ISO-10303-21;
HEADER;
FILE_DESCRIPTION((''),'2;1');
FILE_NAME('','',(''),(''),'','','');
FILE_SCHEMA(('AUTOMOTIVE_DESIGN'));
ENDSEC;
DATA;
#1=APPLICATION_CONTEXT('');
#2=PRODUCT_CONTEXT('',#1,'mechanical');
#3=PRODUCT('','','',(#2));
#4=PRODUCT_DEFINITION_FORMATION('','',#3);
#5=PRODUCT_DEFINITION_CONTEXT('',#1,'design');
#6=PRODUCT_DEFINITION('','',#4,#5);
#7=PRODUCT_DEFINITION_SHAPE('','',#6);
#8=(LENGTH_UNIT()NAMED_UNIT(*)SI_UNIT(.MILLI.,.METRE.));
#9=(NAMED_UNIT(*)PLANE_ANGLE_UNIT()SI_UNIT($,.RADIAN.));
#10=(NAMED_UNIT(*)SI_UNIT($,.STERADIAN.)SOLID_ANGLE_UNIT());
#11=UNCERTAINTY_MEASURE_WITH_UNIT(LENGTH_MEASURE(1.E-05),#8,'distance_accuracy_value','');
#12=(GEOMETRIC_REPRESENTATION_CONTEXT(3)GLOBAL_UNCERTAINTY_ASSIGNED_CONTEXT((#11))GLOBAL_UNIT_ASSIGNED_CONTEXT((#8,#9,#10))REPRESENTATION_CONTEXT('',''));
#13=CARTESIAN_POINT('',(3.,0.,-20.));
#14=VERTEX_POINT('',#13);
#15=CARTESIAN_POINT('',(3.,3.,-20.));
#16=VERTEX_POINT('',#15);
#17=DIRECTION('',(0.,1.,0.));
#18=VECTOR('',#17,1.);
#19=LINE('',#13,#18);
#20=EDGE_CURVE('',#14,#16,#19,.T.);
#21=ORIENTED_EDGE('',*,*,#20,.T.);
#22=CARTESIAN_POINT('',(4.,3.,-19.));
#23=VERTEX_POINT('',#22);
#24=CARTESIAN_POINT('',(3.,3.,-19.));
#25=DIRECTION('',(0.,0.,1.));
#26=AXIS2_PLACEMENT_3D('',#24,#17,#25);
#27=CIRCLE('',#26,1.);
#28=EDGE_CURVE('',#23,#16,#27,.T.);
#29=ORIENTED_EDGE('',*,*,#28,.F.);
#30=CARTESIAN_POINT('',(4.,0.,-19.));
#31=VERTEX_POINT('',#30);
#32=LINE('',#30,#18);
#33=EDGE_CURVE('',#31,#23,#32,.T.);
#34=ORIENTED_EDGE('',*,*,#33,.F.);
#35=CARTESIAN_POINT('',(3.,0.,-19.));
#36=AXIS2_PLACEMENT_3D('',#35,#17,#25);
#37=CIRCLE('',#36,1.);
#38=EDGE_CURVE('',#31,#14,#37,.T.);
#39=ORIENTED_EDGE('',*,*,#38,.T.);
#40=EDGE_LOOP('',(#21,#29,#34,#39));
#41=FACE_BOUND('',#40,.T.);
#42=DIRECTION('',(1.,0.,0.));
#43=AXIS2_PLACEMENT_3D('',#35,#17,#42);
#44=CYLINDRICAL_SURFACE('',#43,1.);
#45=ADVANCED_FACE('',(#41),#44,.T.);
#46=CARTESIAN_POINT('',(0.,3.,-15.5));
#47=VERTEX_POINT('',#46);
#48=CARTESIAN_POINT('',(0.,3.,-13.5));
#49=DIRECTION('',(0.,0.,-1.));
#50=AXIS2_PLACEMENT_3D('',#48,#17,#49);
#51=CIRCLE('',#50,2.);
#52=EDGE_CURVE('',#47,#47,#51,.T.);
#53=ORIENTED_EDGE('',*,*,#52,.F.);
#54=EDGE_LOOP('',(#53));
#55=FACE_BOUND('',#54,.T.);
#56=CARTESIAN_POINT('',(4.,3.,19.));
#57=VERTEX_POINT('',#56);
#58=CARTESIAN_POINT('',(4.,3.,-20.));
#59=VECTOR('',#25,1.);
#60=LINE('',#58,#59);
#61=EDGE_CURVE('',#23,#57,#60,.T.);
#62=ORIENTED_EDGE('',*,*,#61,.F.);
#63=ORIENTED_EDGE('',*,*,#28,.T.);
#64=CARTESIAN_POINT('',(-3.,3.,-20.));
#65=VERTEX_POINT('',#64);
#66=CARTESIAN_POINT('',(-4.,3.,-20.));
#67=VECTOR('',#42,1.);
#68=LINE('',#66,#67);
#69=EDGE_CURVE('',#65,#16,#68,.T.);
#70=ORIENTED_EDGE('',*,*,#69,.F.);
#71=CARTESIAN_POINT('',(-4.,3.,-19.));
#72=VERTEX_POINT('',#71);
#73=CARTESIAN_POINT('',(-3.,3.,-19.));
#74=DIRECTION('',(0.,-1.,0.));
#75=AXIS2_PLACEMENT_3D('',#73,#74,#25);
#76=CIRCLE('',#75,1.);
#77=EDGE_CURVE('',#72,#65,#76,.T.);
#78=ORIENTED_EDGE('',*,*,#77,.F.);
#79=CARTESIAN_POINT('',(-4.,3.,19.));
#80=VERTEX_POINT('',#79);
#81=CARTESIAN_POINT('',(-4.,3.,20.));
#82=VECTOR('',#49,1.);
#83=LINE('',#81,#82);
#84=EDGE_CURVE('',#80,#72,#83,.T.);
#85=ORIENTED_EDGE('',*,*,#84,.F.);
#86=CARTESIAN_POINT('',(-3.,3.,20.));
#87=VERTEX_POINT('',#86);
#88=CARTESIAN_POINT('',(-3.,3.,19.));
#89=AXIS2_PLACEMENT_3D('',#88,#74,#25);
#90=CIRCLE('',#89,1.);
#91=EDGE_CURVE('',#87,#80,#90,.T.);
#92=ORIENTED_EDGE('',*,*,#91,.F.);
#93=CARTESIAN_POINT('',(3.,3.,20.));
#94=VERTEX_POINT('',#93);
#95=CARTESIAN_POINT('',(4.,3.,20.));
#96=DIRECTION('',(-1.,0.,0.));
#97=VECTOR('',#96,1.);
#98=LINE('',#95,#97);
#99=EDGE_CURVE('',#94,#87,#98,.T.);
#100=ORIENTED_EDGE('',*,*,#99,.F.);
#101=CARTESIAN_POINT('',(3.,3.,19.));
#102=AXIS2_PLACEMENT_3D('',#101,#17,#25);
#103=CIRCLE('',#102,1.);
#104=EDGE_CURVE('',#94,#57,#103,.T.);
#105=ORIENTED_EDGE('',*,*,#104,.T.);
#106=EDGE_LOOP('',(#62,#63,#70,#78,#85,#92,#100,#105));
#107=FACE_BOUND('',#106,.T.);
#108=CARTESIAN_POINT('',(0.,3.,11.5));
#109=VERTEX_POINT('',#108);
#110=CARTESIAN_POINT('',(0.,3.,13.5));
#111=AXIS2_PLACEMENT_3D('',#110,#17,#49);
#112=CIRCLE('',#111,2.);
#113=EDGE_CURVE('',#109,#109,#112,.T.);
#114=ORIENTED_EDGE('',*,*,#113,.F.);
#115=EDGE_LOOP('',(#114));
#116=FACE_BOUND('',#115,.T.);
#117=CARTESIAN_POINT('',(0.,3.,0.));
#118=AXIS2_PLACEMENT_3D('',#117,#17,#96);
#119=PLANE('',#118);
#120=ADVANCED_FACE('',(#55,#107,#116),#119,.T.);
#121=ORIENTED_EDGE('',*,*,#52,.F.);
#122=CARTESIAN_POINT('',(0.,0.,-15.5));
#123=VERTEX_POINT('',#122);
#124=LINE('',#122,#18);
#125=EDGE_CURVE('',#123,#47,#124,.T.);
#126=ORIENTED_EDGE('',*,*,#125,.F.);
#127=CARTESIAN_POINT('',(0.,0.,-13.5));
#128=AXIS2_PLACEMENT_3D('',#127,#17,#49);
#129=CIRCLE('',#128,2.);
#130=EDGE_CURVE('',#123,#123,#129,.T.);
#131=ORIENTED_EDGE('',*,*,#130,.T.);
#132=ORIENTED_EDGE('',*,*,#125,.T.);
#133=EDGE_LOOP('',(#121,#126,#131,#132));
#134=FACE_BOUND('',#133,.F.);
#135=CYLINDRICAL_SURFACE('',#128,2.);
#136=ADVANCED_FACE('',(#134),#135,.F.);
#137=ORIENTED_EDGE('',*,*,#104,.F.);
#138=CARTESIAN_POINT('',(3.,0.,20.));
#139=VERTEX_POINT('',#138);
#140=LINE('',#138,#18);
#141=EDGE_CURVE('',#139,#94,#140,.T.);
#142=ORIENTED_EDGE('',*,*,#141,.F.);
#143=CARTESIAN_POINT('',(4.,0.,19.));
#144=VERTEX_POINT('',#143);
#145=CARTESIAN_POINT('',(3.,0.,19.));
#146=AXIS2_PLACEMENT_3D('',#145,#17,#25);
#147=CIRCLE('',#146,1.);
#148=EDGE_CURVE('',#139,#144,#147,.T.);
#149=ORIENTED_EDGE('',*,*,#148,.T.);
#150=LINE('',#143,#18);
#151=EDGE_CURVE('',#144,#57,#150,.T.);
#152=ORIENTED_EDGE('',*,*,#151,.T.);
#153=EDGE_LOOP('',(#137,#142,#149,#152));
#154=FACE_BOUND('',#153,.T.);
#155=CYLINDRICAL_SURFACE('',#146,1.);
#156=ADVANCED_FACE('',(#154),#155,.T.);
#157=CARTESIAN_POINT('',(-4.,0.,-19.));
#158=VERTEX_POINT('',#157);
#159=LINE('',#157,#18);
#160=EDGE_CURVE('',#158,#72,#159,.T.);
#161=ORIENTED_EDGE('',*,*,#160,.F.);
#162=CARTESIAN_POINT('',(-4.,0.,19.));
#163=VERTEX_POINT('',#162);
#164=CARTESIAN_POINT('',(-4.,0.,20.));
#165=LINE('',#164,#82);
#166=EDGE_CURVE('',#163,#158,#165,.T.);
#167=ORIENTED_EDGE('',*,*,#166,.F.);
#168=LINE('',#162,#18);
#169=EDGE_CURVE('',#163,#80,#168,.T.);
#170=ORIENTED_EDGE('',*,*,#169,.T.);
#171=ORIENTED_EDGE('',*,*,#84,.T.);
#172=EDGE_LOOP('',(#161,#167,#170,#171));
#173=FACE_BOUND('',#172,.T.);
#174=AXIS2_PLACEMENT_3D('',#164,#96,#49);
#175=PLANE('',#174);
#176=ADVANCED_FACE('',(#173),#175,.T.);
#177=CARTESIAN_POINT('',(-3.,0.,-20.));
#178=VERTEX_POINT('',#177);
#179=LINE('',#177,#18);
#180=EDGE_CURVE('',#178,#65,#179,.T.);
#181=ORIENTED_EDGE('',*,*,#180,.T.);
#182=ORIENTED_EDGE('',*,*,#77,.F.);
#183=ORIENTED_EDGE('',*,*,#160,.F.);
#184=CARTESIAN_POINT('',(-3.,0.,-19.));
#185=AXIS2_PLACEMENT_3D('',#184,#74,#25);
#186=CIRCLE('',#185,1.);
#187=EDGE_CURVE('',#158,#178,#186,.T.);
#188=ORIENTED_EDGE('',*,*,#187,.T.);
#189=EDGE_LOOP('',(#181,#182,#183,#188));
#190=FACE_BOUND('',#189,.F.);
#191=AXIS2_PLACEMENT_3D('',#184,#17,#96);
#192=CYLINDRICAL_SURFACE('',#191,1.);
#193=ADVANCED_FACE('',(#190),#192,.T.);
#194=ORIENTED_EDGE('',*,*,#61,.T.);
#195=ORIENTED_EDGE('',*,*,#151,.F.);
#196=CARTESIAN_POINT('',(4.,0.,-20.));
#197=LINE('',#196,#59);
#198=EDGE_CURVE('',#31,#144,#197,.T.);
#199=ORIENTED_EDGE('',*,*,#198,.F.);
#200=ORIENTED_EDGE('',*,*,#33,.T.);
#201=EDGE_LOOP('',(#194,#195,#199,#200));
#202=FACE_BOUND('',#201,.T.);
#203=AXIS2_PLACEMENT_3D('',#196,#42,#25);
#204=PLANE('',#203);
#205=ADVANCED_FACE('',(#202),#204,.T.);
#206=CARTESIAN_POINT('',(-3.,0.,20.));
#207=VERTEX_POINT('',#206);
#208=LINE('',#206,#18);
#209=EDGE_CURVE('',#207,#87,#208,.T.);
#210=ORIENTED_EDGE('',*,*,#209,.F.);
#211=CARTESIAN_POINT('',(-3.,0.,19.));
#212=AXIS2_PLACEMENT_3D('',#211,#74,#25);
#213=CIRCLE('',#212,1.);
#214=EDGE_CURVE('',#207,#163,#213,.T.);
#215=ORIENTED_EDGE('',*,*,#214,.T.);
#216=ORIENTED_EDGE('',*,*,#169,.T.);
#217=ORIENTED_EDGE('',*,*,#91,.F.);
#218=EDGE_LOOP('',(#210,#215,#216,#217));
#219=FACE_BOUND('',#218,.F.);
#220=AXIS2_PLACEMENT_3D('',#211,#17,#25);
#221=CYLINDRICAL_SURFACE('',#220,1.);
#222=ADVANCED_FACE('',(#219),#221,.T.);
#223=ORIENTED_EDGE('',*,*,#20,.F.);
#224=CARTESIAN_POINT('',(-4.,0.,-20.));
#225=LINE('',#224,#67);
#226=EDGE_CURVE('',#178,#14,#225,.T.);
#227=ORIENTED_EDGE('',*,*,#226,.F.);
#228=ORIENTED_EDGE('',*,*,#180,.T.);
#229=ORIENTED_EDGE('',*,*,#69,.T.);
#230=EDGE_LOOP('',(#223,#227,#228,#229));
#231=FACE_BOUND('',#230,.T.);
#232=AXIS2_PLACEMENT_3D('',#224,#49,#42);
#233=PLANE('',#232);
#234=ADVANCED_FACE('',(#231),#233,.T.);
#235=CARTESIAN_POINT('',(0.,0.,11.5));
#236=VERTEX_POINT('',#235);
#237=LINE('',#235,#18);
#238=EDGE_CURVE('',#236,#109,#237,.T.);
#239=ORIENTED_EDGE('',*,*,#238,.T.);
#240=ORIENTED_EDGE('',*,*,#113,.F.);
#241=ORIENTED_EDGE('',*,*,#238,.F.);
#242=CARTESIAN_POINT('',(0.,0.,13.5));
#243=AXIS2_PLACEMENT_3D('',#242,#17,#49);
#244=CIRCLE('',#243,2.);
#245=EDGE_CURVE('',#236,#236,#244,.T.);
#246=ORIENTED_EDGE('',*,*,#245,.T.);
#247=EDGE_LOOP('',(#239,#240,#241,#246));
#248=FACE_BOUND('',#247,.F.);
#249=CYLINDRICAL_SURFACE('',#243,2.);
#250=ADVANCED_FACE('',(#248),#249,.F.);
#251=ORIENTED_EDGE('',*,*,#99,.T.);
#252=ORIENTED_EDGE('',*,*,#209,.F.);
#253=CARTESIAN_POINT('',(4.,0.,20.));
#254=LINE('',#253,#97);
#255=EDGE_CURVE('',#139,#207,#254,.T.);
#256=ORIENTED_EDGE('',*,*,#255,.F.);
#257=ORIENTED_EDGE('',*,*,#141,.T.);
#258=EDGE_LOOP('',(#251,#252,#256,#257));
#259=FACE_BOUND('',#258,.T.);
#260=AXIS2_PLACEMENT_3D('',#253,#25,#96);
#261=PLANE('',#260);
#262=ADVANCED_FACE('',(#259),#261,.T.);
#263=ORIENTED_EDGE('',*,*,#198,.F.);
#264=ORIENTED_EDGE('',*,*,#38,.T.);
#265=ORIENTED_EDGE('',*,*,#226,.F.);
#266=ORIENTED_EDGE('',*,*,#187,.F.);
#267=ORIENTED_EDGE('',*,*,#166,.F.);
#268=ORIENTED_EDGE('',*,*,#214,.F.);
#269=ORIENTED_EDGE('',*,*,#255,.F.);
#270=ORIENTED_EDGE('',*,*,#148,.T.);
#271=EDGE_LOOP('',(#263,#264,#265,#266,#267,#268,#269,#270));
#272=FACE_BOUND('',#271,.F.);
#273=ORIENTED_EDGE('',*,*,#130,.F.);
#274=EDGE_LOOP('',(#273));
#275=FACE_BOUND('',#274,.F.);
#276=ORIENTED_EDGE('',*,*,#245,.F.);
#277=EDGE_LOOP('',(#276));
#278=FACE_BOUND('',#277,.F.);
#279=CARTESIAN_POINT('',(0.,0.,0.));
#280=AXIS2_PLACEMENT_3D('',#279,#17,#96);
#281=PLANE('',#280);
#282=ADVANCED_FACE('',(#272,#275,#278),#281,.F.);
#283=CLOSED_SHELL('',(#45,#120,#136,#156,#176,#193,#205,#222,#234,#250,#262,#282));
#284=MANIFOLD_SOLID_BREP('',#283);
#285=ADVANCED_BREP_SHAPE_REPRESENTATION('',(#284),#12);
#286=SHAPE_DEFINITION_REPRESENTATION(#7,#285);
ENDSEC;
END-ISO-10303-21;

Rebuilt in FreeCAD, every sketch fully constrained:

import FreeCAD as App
import Part
import Sketcher


def edges_at(feature, points):
    """Names of the edges that pass closest to the given points."""
    edges = feature.Shape.Edges
    near = lambda p: min(range(len(edges)), key=lambda i: edges[i].distToShape(Part.Vertex(*p))[0])
    return sorted({f"Edge{near(p) + 1}" for p in points})


def add_polygon(sketch, points):
    """Adds a closed chain of lines whose ends are joined by coincident constraints."""
    first, n = sketch.GeometryCount, len(points)
    for a, b in zip(points, points[1:] + points[:1]):
        sketch.addGeometry(Part.LineSegment(App.Vector(*a, 0), App.Vector(*b, 0)), False)
    for i in range(n):
        sketch.addConstraint(Sketcher.Constraint("Coincident", first + i, 2, first + (i + 1) % n, 1))

doc = App.newDocument("Part")
params = doc.addObject("Spreadsheet::Sheet", "Params")
for row, (alias, value) in enumerate([
    ("sketch1_width", "8 mm"),
    ("sketch1_height", "40 mm"),
    ("pad1_length", "3 mm"),
    ("sketch2_diameter", "4 mm"),
    ("hole_diameter", "4 mm"),
    ("fillet_radius", "1 mm"),
], start=1):
    params.set(f"A{row}", alias)
    params.set(f"B{row}", "=" + value)
    params.setAlias(f"B{row}", alias)

body = doc.addObject("PartDesign::Body", "Body")

# Sketch on XZ plane
sketch1 = body.newObject("Sketcher::SketchObject", "Sketch")
sketch1.AttachmentSupport = (doc.getObject("XZ_Plane"), [""])
sketch1.MapMode = "FlatFace"
add_polygon(sketch1, [(-4, 20), (4, 20), (4, -20), (-4, -20)])  # lines 0-3
sketch1.addConstraint(Sketcher.Constraint("Horizontal", 0))
sketch1.addConstraint(Sketcher.Constraint("Vertical", 1))
sketch1.addConstraint(Sketcher.Constraint("Horizontal", 2))
sketch1.addConstraint(Sketcher.Constraint("Vertical", 3))
sketch1.addConstraint(Sketcher.Constraint("Symmetric", 0, 2, 2, 2, -1, 1))
sketch1.addConstraint(Sketcher.Constraint("DistanceX", 0, 1, 0, 2, 8.0))
sketch1.addConstraint(Sketcher.Constraint("DistanceY", 1, 2, 1, 1, 40.0))
sketch1.setExpression("Constraints[9]", "Params.sketch1_width")
sketch1.setExpression("Constraints[10]", "Params.sketch1_height")
pad1 = body.newObject("PartDesign::Pad", "Pad")
pad1.Profile = sketch1
pad1.setExpression("Length", "Params.pad1_length")
pad1.Reversed = True

# Sketch on XZ plane
sketch2 = body.newObject("Sketcher::SketchObject", "Sketch001")
sketch2.AttachmentSupport = (doc.getObject("XZ_Plane"), [""])
sketch2.MapMode = "FlatFace"
sketch2.addGeometry(Part.Circle(App.Vector(0, -13.5, 0), App.Vector(0, 0, 1), 2), False)
sketch2.addGeometry(Part.Circle(App.Vector(0, 13.5, 0), App.Vector(0, 0, 1), 2), False)
sketch2.addConstraint(Sketcher.Constraint("Equal", 0, 1))
sketch2.addConstraint(Sketcher.Constraint("Symmetric", 0, 3, 1, 3, -1, 1))
sketch2.addConstraint(Sketcher.Constraint("PointOnObject", 0, 3, -2))
sketch2.addConstraint(Sketcher.Constraint("Diameter", 0, 4.0))
sketch2.addConstraint(Sketcher.Constraint("DistanceY", 0, 3, 1, 3, 27.0))
sketch2.setExpression("Constraints[3]", "Params.sketch2_diameter")
doc.recompute()
hole = body.newObject("PartDesign::Hole", "Hole")
hole.Profile = sketch2
hole.ThreadType = "None"
hole.setExpression("Diameter", "Params.hole_diameter")
hole.DepthType = "ThroughAll"
doc.recompute()

fillet = body.newObject("PartDesign::Fillet", "Fillet")
fillet.Base = (hole, edges_at(hole, [
    (4, 1.5, 20),
    (-4, 1.5, 20),
    (4, 1.5, -20),
    (-4, 1.5, -20),
]))
fillet.setExpression("Radius", "Params.fillet_radius")

doc.recompute()
